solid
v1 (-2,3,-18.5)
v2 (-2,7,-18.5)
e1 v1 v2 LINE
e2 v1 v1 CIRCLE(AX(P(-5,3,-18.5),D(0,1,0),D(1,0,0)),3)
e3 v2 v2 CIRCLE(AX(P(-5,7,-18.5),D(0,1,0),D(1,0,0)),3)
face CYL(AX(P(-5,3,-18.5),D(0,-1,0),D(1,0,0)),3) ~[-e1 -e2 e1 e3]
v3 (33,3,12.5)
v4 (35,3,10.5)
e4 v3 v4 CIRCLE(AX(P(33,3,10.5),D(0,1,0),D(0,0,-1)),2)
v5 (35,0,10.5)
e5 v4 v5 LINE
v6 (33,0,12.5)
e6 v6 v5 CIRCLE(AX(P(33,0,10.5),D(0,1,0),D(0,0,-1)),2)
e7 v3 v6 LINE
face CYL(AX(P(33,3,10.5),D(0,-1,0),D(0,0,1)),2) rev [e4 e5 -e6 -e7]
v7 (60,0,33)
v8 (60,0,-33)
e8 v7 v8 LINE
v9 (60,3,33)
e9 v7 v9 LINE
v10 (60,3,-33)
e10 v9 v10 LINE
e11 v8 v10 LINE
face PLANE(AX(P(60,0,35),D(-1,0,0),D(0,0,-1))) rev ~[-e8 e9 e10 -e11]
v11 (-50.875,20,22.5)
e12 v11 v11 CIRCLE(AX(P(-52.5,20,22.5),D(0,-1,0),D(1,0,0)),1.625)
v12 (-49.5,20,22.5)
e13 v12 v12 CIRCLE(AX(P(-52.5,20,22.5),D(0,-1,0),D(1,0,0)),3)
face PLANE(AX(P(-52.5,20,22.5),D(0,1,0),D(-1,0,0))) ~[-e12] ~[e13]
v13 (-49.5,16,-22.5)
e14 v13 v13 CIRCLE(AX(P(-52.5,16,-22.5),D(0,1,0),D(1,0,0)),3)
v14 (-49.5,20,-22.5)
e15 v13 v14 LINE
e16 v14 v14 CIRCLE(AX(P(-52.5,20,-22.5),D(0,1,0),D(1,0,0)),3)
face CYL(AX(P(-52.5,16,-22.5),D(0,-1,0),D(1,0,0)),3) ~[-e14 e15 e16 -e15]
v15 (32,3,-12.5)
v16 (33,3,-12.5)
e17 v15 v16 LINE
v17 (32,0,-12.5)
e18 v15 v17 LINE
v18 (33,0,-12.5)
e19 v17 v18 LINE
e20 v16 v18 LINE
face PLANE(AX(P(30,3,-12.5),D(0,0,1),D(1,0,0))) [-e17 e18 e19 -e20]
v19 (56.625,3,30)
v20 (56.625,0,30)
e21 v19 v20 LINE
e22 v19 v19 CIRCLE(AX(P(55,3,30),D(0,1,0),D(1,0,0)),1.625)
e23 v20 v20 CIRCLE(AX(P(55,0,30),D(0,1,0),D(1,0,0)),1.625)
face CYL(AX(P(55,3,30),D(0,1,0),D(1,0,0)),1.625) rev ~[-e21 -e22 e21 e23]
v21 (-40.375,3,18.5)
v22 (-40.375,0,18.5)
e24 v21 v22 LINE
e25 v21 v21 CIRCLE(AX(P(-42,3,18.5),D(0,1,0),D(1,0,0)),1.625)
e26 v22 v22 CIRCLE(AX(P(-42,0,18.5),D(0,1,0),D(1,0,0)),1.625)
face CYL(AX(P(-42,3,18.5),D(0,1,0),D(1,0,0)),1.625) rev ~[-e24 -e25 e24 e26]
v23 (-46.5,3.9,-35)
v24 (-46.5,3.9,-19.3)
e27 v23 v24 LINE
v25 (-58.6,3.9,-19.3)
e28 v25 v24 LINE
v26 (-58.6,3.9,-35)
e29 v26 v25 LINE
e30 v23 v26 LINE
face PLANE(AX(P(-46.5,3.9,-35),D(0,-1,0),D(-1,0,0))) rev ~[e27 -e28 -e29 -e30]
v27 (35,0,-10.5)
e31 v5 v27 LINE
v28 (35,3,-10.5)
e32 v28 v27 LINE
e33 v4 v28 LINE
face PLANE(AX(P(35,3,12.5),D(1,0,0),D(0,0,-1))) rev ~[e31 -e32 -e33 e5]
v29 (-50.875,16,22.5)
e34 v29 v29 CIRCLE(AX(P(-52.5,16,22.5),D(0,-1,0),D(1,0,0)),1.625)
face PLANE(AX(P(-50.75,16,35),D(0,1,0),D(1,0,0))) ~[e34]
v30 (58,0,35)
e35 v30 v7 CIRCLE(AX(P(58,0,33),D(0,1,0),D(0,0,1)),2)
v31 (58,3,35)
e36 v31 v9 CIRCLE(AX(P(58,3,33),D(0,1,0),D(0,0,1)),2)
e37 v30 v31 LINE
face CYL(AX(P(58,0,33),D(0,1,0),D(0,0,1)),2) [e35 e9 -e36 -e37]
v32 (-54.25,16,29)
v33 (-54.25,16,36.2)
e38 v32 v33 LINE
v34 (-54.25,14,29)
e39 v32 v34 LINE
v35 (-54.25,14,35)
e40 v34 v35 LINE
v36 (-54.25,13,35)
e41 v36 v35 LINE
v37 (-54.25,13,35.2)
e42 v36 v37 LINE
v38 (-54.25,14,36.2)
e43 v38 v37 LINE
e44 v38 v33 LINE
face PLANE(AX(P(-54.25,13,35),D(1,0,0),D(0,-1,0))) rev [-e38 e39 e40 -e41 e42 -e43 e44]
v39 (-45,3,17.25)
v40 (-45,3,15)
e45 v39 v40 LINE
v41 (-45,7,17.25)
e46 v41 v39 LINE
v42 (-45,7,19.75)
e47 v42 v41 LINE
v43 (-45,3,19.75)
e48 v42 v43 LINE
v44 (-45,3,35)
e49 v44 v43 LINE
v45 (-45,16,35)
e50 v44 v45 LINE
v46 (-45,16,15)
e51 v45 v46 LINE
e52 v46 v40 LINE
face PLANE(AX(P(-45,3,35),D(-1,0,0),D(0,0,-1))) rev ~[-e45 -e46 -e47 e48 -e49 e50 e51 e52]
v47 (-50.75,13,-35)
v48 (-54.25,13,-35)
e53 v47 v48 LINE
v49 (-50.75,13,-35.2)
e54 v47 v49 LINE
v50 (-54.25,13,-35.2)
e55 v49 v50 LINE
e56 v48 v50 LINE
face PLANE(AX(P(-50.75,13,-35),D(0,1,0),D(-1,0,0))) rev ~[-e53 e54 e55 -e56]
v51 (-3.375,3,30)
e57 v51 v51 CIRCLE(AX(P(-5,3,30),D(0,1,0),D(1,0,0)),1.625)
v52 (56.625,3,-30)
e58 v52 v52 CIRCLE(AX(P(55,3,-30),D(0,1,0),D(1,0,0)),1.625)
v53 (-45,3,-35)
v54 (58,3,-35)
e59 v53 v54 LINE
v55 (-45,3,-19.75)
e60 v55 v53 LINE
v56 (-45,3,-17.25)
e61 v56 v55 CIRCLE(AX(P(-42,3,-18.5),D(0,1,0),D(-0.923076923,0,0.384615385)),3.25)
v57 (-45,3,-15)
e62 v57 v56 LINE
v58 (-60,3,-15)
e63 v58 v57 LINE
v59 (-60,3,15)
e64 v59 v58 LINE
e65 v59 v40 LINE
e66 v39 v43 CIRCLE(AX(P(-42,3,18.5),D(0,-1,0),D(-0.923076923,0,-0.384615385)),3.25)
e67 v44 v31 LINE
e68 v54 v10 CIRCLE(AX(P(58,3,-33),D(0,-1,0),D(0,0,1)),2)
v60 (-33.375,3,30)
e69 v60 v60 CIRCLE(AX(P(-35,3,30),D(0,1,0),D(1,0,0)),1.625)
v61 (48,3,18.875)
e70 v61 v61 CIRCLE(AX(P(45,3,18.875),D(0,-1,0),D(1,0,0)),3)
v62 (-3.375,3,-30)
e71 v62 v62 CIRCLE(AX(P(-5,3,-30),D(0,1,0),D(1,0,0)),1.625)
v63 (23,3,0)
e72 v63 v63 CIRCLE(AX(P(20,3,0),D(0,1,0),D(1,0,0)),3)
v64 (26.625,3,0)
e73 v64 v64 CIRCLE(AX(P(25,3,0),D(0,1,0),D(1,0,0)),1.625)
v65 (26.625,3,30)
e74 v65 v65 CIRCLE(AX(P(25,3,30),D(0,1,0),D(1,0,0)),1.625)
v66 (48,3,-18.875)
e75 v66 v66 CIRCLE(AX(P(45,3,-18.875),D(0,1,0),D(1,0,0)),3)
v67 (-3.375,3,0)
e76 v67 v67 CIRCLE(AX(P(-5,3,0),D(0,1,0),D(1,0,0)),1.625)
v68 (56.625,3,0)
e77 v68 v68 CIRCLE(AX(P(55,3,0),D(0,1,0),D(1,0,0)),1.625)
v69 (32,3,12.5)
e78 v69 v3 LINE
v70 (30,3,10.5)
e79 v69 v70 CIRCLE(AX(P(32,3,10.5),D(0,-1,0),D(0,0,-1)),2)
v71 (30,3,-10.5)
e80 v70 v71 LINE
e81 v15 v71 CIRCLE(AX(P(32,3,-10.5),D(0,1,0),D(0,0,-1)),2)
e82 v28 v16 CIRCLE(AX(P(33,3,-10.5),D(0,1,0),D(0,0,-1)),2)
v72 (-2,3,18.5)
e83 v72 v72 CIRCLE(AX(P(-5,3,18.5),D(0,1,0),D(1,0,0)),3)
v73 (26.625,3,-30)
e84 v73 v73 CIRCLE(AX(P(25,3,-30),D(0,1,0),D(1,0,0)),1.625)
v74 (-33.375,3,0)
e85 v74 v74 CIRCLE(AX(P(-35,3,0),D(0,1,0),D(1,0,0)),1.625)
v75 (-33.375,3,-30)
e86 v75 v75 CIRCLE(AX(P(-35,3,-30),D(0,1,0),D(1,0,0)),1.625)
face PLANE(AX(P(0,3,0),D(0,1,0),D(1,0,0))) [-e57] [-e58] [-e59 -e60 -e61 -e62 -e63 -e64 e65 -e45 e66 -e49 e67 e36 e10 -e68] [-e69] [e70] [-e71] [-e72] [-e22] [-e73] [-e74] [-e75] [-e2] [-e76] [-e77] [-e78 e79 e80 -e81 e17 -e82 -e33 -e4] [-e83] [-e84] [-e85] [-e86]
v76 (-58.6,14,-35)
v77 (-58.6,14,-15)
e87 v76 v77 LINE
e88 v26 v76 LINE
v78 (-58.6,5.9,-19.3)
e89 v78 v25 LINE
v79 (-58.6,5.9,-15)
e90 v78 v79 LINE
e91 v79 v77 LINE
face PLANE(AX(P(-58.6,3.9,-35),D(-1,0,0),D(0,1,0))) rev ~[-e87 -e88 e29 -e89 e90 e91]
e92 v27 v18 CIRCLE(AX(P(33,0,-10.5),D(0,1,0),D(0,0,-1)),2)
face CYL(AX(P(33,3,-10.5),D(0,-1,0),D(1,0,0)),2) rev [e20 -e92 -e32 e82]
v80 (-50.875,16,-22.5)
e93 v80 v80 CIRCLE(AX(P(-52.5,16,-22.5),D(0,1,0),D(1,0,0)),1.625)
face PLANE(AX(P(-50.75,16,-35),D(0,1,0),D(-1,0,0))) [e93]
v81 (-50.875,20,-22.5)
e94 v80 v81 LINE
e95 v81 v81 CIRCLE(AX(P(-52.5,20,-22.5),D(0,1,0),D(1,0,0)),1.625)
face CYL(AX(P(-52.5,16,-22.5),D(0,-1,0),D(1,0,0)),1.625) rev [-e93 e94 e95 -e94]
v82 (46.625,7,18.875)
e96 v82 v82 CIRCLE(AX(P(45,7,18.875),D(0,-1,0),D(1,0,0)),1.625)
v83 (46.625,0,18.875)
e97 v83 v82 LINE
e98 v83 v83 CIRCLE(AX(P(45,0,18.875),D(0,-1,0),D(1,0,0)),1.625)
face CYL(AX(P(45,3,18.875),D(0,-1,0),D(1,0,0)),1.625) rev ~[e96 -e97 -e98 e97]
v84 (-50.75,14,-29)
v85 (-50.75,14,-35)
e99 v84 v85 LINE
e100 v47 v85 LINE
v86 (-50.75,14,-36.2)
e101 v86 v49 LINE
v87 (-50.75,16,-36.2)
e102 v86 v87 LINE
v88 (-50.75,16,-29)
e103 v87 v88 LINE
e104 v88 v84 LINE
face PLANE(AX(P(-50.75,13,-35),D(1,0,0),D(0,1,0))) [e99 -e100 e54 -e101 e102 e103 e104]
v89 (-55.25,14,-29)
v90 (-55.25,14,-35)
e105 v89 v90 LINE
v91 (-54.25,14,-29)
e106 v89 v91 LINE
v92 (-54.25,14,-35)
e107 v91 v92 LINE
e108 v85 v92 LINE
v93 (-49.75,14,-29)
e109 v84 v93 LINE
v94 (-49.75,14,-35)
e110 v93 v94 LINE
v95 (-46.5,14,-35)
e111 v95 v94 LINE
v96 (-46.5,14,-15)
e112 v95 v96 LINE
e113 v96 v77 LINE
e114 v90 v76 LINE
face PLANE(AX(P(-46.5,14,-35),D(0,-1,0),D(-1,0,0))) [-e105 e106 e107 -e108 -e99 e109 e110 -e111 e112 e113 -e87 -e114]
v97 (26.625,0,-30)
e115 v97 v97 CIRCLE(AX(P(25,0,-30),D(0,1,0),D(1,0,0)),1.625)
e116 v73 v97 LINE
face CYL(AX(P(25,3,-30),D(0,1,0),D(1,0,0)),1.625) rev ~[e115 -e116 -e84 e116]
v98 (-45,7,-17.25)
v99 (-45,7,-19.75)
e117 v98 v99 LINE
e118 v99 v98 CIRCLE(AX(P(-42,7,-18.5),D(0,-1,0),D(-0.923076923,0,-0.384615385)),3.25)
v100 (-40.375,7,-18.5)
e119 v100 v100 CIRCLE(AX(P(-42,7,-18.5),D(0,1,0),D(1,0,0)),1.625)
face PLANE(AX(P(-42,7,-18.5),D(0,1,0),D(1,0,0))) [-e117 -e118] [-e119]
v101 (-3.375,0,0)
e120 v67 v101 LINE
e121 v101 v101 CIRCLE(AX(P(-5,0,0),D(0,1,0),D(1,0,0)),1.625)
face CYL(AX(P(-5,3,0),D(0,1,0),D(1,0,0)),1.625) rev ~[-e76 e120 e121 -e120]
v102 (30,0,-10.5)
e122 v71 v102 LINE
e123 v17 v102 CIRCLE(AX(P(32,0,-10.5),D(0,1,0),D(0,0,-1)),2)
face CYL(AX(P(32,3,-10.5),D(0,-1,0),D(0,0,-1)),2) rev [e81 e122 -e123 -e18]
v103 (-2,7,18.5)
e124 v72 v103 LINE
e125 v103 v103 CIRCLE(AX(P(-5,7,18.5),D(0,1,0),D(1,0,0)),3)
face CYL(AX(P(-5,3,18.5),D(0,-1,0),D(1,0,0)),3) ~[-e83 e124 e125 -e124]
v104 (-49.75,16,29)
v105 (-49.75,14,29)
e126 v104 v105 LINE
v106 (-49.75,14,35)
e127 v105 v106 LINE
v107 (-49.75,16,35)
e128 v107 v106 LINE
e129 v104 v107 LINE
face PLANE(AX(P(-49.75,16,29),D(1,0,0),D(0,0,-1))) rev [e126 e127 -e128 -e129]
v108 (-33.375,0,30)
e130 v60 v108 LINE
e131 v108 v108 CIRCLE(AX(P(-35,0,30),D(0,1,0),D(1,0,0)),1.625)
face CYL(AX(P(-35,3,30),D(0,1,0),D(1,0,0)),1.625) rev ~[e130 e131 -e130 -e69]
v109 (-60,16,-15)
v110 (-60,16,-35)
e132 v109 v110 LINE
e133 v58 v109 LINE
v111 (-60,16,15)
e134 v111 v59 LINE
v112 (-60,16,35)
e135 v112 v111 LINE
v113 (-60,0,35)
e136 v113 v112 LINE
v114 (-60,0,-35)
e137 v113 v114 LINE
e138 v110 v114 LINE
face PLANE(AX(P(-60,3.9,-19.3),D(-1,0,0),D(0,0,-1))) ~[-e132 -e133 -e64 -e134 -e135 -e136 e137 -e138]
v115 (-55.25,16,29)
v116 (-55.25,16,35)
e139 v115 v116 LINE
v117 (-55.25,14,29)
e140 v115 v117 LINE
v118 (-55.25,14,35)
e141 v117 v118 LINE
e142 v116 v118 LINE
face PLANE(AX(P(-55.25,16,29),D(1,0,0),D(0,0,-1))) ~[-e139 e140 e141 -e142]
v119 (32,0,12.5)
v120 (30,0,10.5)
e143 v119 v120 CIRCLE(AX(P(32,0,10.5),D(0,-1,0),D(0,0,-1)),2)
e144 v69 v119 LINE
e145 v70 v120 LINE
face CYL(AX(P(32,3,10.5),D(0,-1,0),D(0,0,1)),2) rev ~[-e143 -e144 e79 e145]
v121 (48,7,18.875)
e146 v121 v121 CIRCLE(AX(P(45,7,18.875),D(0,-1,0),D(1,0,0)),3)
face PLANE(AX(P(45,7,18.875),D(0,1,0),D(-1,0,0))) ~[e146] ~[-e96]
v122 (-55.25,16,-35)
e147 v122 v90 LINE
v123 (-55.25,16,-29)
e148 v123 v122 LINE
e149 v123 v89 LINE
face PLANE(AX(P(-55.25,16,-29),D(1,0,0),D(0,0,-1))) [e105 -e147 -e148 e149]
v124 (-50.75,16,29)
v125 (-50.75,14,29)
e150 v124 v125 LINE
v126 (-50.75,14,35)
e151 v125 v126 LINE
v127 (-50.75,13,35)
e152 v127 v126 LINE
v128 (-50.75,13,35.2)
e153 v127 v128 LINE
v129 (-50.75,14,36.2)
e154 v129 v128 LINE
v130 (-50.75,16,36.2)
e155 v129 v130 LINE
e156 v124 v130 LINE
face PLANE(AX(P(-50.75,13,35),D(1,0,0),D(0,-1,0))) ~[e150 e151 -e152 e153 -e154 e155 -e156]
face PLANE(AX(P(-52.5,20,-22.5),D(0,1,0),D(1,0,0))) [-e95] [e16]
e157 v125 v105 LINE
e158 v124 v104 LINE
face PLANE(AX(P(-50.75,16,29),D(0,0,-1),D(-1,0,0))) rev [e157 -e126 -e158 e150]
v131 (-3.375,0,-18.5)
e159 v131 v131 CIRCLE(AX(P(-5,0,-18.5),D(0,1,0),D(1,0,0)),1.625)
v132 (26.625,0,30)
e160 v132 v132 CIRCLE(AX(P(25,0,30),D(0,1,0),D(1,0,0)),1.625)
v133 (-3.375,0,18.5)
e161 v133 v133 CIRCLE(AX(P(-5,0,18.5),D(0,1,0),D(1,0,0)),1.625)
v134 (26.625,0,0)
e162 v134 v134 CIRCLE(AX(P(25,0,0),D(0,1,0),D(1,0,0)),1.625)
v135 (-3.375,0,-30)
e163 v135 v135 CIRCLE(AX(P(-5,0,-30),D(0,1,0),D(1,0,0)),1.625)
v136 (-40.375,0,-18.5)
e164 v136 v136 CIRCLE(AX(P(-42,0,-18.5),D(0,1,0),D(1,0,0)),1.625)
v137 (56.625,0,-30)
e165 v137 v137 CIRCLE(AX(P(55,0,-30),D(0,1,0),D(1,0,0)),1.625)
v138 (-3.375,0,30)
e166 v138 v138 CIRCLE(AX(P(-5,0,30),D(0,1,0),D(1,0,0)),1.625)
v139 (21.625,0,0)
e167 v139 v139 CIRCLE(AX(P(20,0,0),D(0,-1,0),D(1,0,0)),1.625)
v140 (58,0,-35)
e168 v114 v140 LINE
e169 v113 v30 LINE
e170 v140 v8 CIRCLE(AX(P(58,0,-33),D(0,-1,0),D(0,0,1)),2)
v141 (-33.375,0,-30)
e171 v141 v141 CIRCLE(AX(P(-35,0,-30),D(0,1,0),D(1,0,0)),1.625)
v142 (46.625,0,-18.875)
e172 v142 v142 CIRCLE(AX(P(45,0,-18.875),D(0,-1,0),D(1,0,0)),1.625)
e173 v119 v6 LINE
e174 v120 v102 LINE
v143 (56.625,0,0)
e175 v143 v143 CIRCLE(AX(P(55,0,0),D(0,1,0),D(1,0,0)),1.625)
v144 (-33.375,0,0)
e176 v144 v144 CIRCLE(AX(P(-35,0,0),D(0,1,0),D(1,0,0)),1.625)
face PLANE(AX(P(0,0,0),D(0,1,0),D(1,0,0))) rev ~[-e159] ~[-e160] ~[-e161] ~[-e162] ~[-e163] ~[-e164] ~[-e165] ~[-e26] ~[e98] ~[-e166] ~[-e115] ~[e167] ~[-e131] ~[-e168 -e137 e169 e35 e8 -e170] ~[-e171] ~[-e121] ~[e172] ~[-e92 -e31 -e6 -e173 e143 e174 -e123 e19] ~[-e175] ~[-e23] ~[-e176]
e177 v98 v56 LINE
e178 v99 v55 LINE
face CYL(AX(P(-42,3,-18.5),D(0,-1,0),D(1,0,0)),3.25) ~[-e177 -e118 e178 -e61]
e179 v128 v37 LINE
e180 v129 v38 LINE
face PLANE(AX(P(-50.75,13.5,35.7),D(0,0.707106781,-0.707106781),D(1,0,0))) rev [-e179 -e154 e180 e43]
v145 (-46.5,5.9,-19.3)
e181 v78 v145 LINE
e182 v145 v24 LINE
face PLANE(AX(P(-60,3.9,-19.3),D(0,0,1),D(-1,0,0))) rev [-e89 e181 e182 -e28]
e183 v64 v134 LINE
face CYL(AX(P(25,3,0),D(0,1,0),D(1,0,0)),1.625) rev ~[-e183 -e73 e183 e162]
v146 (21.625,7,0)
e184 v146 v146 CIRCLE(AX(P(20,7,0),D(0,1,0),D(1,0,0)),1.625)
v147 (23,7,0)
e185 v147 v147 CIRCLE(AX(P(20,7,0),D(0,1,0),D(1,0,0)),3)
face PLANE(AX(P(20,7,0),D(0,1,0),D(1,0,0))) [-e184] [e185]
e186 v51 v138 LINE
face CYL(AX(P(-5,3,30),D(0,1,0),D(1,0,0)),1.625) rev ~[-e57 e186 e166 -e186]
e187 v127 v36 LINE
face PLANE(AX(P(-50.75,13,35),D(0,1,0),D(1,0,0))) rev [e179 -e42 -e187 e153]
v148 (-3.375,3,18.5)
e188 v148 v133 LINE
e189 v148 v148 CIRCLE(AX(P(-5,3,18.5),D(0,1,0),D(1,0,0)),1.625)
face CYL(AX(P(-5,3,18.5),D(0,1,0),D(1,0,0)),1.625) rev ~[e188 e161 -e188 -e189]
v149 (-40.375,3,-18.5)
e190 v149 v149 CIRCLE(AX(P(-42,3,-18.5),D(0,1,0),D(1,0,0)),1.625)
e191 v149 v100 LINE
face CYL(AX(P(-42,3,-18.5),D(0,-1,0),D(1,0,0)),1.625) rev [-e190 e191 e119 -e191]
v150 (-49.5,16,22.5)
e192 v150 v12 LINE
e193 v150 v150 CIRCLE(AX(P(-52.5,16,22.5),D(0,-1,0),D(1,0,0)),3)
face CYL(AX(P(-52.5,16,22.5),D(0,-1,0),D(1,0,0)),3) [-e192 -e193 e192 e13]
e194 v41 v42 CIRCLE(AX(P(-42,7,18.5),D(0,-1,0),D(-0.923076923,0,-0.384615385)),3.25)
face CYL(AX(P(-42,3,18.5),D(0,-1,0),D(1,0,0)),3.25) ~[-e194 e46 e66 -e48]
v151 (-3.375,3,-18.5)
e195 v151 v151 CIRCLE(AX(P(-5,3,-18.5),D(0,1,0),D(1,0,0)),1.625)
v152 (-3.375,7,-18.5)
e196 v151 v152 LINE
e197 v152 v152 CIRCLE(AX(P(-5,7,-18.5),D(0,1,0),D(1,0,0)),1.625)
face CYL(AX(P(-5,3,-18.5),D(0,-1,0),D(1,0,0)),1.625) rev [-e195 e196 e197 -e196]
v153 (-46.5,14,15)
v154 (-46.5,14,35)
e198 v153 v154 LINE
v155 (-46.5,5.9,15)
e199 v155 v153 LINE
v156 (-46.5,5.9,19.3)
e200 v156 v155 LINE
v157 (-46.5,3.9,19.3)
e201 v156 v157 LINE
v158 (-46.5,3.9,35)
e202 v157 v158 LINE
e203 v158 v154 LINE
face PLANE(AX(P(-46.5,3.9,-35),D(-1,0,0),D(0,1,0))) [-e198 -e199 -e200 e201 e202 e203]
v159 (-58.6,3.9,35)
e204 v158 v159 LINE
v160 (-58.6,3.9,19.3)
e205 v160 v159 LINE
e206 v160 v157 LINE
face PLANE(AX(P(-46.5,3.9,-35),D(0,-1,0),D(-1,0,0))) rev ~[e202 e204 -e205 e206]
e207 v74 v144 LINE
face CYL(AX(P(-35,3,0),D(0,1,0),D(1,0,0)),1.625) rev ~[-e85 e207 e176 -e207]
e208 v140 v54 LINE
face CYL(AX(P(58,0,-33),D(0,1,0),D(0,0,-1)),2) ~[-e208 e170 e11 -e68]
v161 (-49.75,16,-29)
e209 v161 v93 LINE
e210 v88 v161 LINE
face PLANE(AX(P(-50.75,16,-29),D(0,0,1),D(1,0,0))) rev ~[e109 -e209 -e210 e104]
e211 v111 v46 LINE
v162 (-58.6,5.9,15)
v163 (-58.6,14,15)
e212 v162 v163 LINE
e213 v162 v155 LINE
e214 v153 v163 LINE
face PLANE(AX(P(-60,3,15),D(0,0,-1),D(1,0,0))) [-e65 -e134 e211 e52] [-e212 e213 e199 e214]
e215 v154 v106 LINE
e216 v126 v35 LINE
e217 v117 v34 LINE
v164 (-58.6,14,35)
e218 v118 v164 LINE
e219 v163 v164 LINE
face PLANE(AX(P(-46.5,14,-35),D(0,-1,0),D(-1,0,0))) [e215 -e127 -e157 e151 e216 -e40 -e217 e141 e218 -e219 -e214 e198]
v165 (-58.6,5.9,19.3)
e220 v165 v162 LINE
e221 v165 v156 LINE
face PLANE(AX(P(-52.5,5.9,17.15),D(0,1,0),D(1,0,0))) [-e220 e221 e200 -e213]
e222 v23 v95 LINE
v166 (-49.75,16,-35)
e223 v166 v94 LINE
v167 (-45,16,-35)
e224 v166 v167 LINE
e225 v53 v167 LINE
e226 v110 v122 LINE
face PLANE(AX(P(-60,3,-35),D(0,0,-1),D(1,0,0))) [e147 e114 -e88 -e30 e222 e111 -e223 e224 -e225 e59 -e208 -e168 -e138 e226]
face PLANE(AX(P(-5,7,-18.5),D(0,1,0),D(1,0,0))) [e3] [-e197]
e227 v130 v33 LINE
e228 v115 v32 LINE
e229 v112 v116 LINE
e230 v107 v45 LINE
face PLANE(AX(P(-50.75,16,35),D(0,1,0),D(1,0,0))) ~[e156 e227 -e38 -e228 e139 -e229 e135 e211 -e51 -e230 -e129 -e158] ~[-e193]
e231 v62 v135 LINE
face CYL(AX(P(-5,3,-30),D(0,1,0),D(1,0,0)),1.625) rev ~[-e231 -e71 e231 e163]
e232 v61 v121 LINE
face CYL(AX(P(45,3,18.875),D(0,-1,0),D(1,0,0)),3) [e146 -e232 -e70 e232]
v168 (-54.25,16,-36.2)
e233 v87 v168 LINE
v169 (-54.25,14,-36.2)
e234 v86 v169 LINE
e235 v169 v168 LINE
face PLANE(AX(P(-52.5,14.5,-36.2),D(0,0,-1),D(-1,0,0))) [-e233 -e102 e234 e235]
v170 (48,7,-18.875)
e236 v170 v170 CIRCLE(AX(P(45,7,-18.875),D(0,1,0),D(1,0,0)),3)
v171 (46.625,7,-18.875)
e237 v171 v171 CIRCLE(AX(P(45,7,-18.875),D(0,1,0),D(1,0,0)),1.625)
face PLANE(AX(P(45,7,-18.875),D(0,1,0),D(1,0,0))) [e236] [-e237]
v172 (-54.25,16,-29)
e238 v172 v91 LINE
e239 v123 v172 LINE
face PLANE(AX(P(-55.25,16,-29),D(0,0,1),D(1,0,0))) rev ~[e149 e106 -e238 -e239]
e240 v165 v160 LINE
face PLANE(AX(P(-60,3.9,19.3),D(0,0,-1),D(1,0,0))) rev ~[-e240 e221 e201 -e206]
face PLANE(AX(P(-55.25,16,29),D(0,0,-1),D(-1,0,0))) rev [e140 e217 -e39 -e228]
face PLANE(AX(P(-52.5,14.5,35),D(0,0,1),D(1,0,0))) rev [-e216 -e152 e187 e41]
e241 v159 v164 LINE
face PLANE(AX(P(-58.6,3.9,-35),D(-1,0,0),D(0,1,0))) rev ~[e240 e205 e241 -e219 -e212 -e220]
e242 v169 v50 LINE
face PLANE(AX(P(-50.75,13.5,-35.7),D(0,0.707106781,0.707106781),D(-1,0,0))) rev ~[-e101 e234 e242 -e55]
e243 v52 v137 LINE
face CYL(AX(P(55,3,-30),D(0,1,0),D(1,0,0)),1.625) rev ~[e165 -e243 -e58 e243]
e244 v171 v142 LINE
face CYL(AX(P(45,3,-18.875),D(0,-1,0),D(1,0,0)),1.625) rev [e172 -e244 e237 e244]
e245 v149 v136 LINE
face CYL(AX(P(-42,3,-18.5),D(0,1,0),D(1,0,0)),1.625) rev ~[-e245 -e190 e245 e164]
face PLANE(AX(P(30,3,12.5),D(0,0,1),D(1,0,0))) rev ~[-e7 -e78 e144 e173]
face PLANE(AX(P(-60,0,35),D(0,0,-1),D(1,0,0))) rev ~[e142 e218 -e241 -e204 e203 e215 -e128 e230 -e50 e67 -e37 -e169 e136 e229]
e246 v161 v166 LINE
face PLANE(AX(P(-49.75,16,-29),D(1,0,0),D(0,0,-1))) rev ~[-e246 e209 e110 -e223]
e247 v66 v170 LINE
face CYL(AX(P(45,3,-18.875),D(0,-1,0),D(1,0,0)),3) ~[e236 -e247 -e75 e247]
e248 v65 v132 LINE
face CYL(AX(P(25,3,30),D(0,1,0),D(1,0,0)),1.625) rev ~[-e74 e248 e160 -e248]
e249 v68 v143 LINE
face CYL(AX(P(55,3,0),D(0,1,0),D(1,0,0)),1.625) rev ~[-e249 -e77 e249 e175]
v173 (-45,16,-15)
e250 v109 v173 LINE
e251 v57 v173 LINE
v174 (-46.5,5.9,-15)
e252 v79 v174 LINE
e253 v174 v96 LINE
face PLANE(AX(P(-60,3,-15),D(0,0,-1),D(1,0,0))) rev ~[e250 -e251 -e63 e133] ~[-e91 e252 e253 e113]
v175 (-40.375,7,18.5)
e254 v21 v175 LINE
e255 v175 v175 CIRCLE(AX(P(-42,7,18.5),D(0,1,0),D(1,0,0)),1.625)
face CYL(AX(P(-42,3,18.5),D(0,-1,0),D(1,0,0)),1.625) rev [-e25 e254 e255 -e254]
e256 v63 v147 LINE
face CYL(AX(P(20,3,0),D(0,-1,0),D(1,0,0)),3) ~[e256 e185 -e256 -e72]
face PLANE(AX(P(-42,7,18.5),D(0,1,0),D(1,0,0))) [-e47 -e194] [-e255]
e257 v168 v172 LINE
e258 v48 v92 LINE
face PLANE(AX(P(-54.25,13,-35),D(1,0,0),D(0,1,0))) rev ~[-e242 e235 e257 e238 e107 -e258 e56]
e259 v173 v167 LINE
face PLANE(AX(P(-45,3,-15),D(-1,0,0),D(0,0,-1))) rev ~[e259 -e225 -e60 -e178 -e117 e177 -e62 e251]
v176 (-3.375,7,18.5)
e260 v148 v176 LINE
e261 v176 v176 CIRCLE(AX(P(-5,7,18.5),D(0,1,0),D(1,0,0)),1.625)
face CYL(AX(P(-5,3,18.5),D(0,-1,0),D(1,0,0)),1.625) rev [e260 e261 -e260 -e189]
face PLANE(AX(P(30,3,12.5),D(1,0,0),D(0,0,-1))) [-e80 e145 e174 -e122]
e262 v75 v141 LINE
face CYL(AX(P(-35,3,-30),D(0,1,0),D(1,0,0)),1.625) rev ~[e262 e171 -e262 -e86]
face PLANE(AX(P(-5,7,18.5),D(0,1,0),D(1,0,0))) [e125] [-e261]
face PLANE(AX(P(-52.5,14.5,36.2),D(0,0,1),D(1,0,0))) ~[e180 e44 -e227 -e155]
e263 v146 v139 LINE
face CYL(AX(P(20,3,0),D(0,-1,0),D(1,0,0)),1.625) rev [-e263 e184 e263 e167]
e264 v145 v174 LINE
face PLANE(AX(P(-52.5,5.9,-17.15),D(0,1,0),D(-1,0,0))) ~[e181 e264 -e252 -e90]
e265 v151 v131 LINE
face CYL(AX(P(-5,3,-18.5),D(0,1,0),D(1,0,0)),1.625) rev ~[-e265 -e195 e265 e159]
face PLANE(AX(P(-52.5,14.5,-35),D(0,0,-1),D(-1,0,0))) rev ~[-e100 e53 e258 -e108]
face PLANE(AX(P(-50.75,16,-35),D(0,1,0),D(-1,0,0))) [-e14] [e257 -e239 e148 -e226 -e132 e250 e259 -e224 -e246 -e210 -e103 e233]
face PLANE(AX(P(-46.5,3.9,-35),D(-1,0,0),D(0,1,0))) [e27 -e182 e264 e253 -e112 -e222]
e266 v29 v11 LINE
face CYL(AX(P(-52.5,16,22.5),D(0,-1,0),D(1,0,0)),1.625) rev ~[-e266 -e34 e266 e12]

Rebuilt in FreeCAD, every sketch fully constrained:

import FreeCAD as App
import Part
import Sketcher

V = App.Vector
Q = App.Units.Quantity


def edges_at(feature, points):
    """Names of the edges that pass closest to the given points."""
    edges = feature.Shape.Edges
    near = lambda p: min(range(len(edges)), key=lambda i: edges[i].distToShape(Part.Vertex(*p))[0])
    return sorted({f"Edge{near(p) + 1}" for p in points})

doc = App.newDocument("Part")
body = doc.addObject("PartDesign::Body", "Body")

# Sketch on XZ plane
sketch1 = body.newObject("Sketcher::SketchObject", "Sketch")
sketch1.AttachmentSupport = (doc.getObject("XZ_Plane"), [""])
sketch1.MapMode = "FlatFace"
sketch1.addGeometry([
    Part.LineSegment(V(-60, -35, 0), V(-60, 35, 0)),
    Part.LineSegment(V(-60, 35, 0), V(60, 35, 0)),
    Part.LineSegment(V(60, 35, 0), V(60, -35, 0)),
    Part.LineSegment(V(60, -35, 0), V(-60, -35, 0)),
], False)
sketch1.addConstraint([
    Sketcher.Constraint("Coincident", 0, 2, 1, 1),
    Sketcher.Constraint("Coincident", 1, 2, 2, 1),
    Sketcher.Constraint("Coincident", 2, 2, 3, 1),
    Sketcher.Constraint("Coincident", 3, 2, 0, 1),
    Sketcher.Constraint("Vertical", 0),
    Sketcher.Constraint("Horizontal", 1),
    Sketcher.Constraint("Vertical", 2),
    Sketcher.Constraint("Horizontal", 3),
    Sketcher.Constraint("Symmetric", 0, 2, 2, 2, -1, 1),
    Sketcher.Constraint("DistanceX", 1, 1, 1, 2, Q("120 mm")),
    Sketcher.Constraint("DistanceY", 0, 1, 0, 2, Q("70 mm")),
])
pad1 = body.newObject("PartDesign::Pad", "Pad")
pad1.Profile = sketch1
pad1.Length = 3
pad1.Reversed = True

# Sketch on XZ plane
sketch2 = body.newObject("Sketcher::SketchObject", "Sketch001")
sketch2.AttachmentSupport = (doc.getObject("XZ_Plane"), [""])
sketch2.MapMode = "FlatFace"
sketch2.AttachmentOffset = App.Placement(V(0, 0, -3), App.Rotation())
sketch2.addGeometry([
    Part.LineSegment(V(-60, -35, 0), V(-60, -15, 0)),  # 0
    Part.LineSegment(V(-60, -15, 0), V(-45, -15, 0)),  # 1
    Part.LineSegment(V(-45, -15, 0), V(-45, -35, 0)),  # 2
    Part.LineSegment(V(-45, -35, 0), V(-60, -35, 0)),  # 3
    Part.LineSegment(V(-60, 15, 0), V(-60, 35, 0)),  # 4
    Part.LineSegment(V(-60, 35, 0), V(-45, 35, 0)),  # 5
    Part.LineSegment(V(-45, 35, 0), V(-45, 15, 0)),  # 6
    Part.LineSegment(V(-45, 15, 0), V(-60, 15, 0)),  # 7
], False)
sketch2.addConstraint([
    Sketcher.Constraint("Coincident", 0, 2, 1, 1),
    Sketcher.Constraint("Coincident", 1, 2, 2, 1),
    Sketcher.Constraint("Coincident", 2, 2, 3, 1),
    Sketcher.Constraint("Coincident", 3, 2, 0, 1),
    Sketcher.Constraint("Coincident", 4, 2, 5, 1),
    Sketcher.Constraint("Coincident", 5, 2, 6, 1),
    Sketcher.Constraint("Coincident", 6, 2, 7, 1),
    Sketcher.Constraint("Coincident", 7, 2, 4, 1),
    Sketcher.Constraint("Vertical", 0),
    Sketcher.Constraint("Horizontal", 1),
    Sketcher.Constraint("Vertical", 2),
    Sketcher.Constraint("Horizontal", 3),
    Sketcher.Constraint("Vertical", 4),
    Sketcher.Constraint("Horizontal", 5),
    Sketcher.Constraint("Vertical", 6),
    Sketcher.Constraint("Horizontal", 7),
    Sketcher.Constraint("Symmetric", 3, 2, 4, 2, -1),
    Sketcher.Constraint("Symmetric", 1, 2, 6, 2, -1),
    Sketcher.Constraint("DistanceX", 1, 1, 1, 2, Q("15 mm")),
    Sketcher.Constraint("DistanceY", 0, 1, 0, 2, Q("20 mm")),
    Sketcher.Constraint("DistanceX", 0, 2, -1, 1, Q("60 mm")),
    Sketcher.Constraint("DistanceY", 0, 2, -1, 1, Q("15 mm")),
])
pad2 = body.newObject("PartDesign::Pad", "Pad001")
pad2.Profile = sketch2
pad2.Length = 13
pad2.Reversed = True

# Sketch on XY plane
sketch3 = body.newObject("Sketcher::SketchObject", "Sketch002")
sketch3.AttachmentSupport = (doc.getObject("XY_Plane"), [""])
sketch3.MapMode = "FlatFace"
sketch3.AttachmentOffset = App.Placement(V(0, 0, -35), App.Rotation())
sketch3.addGeometry([
    Part.LineSegment(V(-46.5, 14, 0), V(-46.5, 3.9, 0)),
    Part.LineSegment(V(-46.5, 3.9, 0), V(-58.6, 3.9, 0)),
    Part.LineSegment(V(-58.6, 3.9, 0), V(-58.6, 14, 0)),
    Part.LineSegment(V(-58.6, 14, 0), V(-46.5, 14, 0)),
], False)
sketch3.addConstraint([
    Sketcher.Constraint("Coincident", 0, 2, 1, 1),
    Sketcher.Constraint("Coincident", 1, 2, 2, 1),
    Sketcher.Constraint("Coincident", 2, 2, 3, 1),
    Sketcher.Constraint("Coincident", 3, 2, 0, 1),
    Sketcher.Constraint("Vertical", 0),
    Sketcher.Constraint("Horizontal", 1),
    Sketcher.Constraint("Vertical", 2),
    Sketcher.Constraint("Horizontal", 3),
    Sketcher.Constraint("DistanceX", 1, 2, 1, 1, Q("12.1 mm")),
    Sketcher.Constraint("DistanceY", 0, 2, 0, 1, Q("10.1 mm")),
    Sketcher.Constraint("DistanceY", -1, 1, 2, 2, Q("14 mm")),
    Sketcher.Constraint("DistanceX", 0, 2, -1, 1, Q("46.5 mm")),
])
pocket1 = body.newObject("PartDesign::Pocket", "Pocket")
pocket1.Profile = sketch3
pocket1.Type = "ThroughAll"
pocket1.Reversed = True

# Sketch on XZ plane
sketch4 = body.newObject("Sketcher::SketchObject", "Sketch003")
sketch4.AttachmentSupport = (doc.getObject("XZ_Plane"), [""])
sketch4.MapMode = "FlatFace"
sketch4.AttachmentOffset = App.Placement(V(0, 0, -3.9), App.Rotation())
sketch4.addGeometry([
    Part.LineSegment(V(-60, 15, 0), V(-60, 19.3, 0)),
    Part.LineSegment(V(-60, 19.3, 0), V(-45, 19.3, 0)),
    Part.LineSegment(V(-45, 19.3, 0), V(-45, 15, 0)),
    Part.LineSegment(V(-45, 15, 0), V(-60, 15, 0)),
], False)
sketch4.addConstraint([
    Sketcher.Constraint("Coincident", 0, 2, 1, 1),
    Sketcher.Constraint("Coincident", 1, 2, 2, 1),
    Sketcher.Constraint("Coincident", 2, 2, 3, 1),
    Sketcher.Constraint("Coincident", 3, 2, 0, 1),
    Sketcher.Constraint("Vertical", 0),
    Sketcher.Constraint("Horizontal", 1),
    Sketcher.Constraint("Vertical", 2),
    Sketcher.Constraint("Horizontal", 3),
    Sketcher.Constraint("DistanceX", 1, 1, 1, 2, Q("15 mm")),
    Sketcher.Constraint("DistanceY", 0, 1, 0, 2, Q("4.3 mm")),
    Sketcher.Constraint("DistanceX", 0, 2, -1, 1, Q("60 mm")),
    Sketcher.Constraint("DistanceY", -1, 1, 2, 2, Q("15 mm")),
])
pad3 = body.newObject("PartDesign::Pad", "Pad002")
pad3.Profile = sketch4
pad3.Length = 2
pad3.Reversed = True
doc.recompute()

mirrored = body.newObject("PartDesign::Mirrored", "Mirrored")
mirrored.Originals = [pad3]
mirrored.MirrorPlane = (doc.getObject("XY_Plane"), [""])
body.Tip = mirrored

# Sketch on XZ plane
sketch5 = body.newObject("Sketcher::SketchObject", "Sketch004")
sketch5.AttachmentSupport = (doc.getObject("XZ_Plane"), [""])
sketch5.MapMode = "FlatFace"
sketch5.AttachmentOffset = App.Placement(V(0, 0, -16), App.Rotation())
sketch5.addGeometry([
    Part.LineSegment(V(-55.25, -35, 0), V(-55.25, -29, 0)),  # 0
    Part.LineSegment(V(-55.25, -29, 0), V(-54.25, -29, 0)),  # 1
    Part.LineSegment(V(-54.25, -29, 0), V(-54.25, -35, 0)),  # 2
    Part.LineSegment(V(-54.25, -35, 0), V(-55.25, -35, 0)),  # 3
    Part.LineSegment(V(-50.75, -35, 0), V(-50.75, -29, 0)),  # 4
    Part.LineSegment(V(-50.75, -29, 0), V(-49.75, -29, 0)),  # 5
    Part.LineSegment(V(-49.75, -29, 0), V(-49.75, -35, 0)),  # 6
    Part.LineSegment(V(-49.75, -35, 0), V(-50.75, -35, 0)),  # 7
], False)
sketch5.addConstraint([
    Sketcher.Constraint("Coincident", 0, 2, 1, 1),
    Sketcher.Constraint("Coincident", 1, 2, 2, 1),
    Sketcher.Constraint("Coincident", 2, 2, 3, 1),
    Sketcher.Constraint("Coincident", 3, 2, 0, 1),
    Sketcher.Constraint("Coincident", 4, 2, 5, 1),
    Sketcher.Constraint("Coincident", 5, 2, 6, 1),
    Sketcher.Constraint("Coincident", 6, 2, 7, 1),
    Sketcher.Constraint("Coincident", 7, 2, 4, 1),
    Sketcher.Constraint("Vertical", 0),
    Sketcher.Constraint("Horizontal", 1),
    Sketcher.Constraint("Vertical", 2),
    Sketcher.Constraint("Horizontal", 3),
    Sketcher.Constraint("Vertical", 4),
    Sketcher.Constraint("Horizontal", 5),
    Sketcher.Constraint("Vertical", 6),
    Sketcher.Constraint("Horizontal", 7),
    Sketcher.Constraint("Horizontal", 1, 2, 4, 2),
    Sketcher.Constraint("Horizontal", 3, 2, 6, 2),
    Sketcher.Constraint("Equal", 3, 5),
    Sketcher.Constraint("DistanceX", 1, 1, 1, 2, Q("1 mm")),
    Sketcher.Constraint("DistanceY", 0, 1, 0, 2, Q("6 mm")),
    Sketcher.Constraint("DistanceY", 0, 2, -1, 1, Q("29 mm")),
    Sketcher.Constraint("DistanceX", 1, 2, 4, 2, Q("3.5 mm")),
    Sketcher.Constraint("DistanceX", 0, 2, -1, 1, Q("55.25 mm")),
])
pocket2 = body.newObject("PartDesign::Pocket", "Pocket001")
pocket2.Profile = sketch5
pocket2.Length = 2
pocket2.Reversed = True
doc.recompute()

mirrored2 = body.newObject("PartDesign::Mirrored", "Mirrored001")
mirrored2.Originals = [pocket2]
mirrored2.MirrorPlane = (doc.getObject("XY_Plane"), [""])
body.Tip = mirrored2

# Sketch on XY plane
sketch6 = body.newObject("Sketcher::SketchObject", "Sketch005")
sketch6.AttachmentSupport = (doc.getObject("XY_Plane"), [""])
sketch6.MapMode = "FlatFace"
sketch6.AttachmentOffset = App.Placement(V(0, 0, -35), App.Rotation())
sketch6.addGeometry([
    Part.LineSegment(V(-50.75, 16, 0), V(-50.75, 13, 0)),
    Part.LineSegment(V(-50.75, 13, 0), V(-54.25, 13, 0)),
    Part.LineSegment(V(-54.25, 13, 0), V(-54.25, 16, 0)),
    Part.LineSegment(V(-54.25, 16, 0), V(-50.75, 16, 0)),
], False)
sketch6.addConstraint([
    Sketcher.Constraint("Coincident", 0, 2, 1, 1),
    Sketcher.Constraint("Coincident", 1, 2, 2, 1),
    Sketcher.Constraint("Coincident", 2, 2, 3, 1),
    Sketcher.Constraint("Coincident", 3, 2, 0, 1),
    Sketcher.Constraint("Vertical", 0),
    Sketcher.Constraint("Horizontal", 1),
    Sketcher.Constraint("Vertical", 2),
    Sketcher.Constraint("Horizontal", 3),
    Sketcher.Constraint("DistanceY", 0, 2, 0, 1, Q("3 mm")),
    Sketcher.Constraint("DistanceX", 1, 2, 1, 1, Q("3.5 mm")),
    Sketcher.Constraint("DistanceY", -1, 1, 0, 2, Q("13 mm")),
    Sketcher.Constraint("DistanceX", 0, 2, -1, 1, Q("50.75 mm")),
])
pad4 = body.newObject("PartDesign::Pad", "Pad003")
pad4.Profile = sketch6
pad4.Length = 1.2
pad4.Reversed = True
doc.recompute()

chamfer = body.newObject("PartDesign::Chamfer", "Chamfer")
chamfer.Base = (pad4, edges_at(pad4, [(-52.5, 13, -36.2)]))
chamfer.Size = 1
doc.recompute()

mirrored3 = body.newObject("PartDesign::Mirrored", "Mirrored002")
mirrored3.Originals = [pad4]
mirrored3.MirrorPlane = (doc.getObject("XY_Plane"), [""])
body.Tip = mirrored3
doc.recompute()

chamfer2 = body.newObject("PartDesign::Chamfer", "Chamfer001")
chamfer2.Base = (mirrored3, edges_at(mirrored3, [(-52.5, 13, 36.2)]))
chamfer2.Size = 1

# Sketch on XZ plane
sketch7 = body.newObject("Sketcher::SketchObject", "Sketch006")
sketch7.AttachmentSupport = (doc.getObject("XZ_Plane"), [""])
sketch7.MapMode = "FlatFace"
sketch7.addGeometry(Part.Circle(V(45, 18.875, 0), V(0, 0, 1), 1.625), False)
sketch7.addConstraint([
    Sketcher.Constraint("Diameter", 0, Q("3.25 mm")),
    Sketcher.Constraint("DistanceX", -1, 1, 0, 3, Q("45 mm")),
    Sketcher.Constraint("DistanceY", -1, 1, 0, 3, Q("18.875 mm")),
])
pocket3 = body.newObject("PartDesign::Pocket", "Pocket002")
pocket3.Profile = sketch7
pocket3.Type = "UpToFirst"

# Sketch on XZ plane
sketch8 = body.newObject("Sketcher::SketchObject", "Sketch007")
sketch8.AttachmentSupport = (doc.getObject("XZ_Plane"), [""])
sketch8.MapMode = "FlatFace"
sketch8.addGeometry(Part.Circle(V(45, -18.875, 0), V(0, 0, 1), 1.625), False)
sketch8.addConstraint([
    Sketcher.Constraint("Diameter", 0, Q("3.25 mm")),
    Sketcher.Constraint("DistanceX", -1, 1, 0, 3, Q("45 mm")),
    Sketcher.Constraint("DistanceY", 0, 3, -1, 1, Q("18.875 mm")),
])
pocket4 = body.newObject("PartDesign::Pocket", "Pocket003")
pocket4.Profile = sketch8
pocket4.Type = "UpToFirst"

# Sketch on XZ plane
sketch9 = body.newObject("Sketcher::SketchObject", "Sketch008")
sketch9.AttachmentSupport = (doc.getObject("XZ_Plane"), [""])
sketch9.MapMode = "FlatFace"
sketch9.AttachmentOffset = App.Placement(V(0, 0, -3), App.Rotation())
sketch9.addGeometry([
    Part.Circle(V(45, -18.875, 0), V(0, 0, 1), 3),
    Part.Circle(V(45, -18.875, 0), V(0, 0, 1), 1.625),
], False)
sketch9.addConstraint([
    Sketcher.Constraint("Coincident", 1, 3, 0, 3),
    Sketcher.Constraint("Diameter", 0, Q("6 mm")),
    Sketcher.Constraint("Diameter", 1, Q("3.25 mm")),
    Sketcher.Constraint("DistanceX", -1, 1, 0, 3, Q("45 mm")),
    Sketcher.Constraint("DistanceY", 0, 3, -1, 1, Q("18.875 mm")),
])
pad5 = body.newObject("PartDesign::Pad", "Pad004")
pad5.Profile = sketch9
pad5.Length = 4
pad5.Reversed = True
doc.recompute()

mirrored4 = body.newObject("PartDesign::Mirrored", "Mirrored003")
mirrored4.Originals = [pad5]
mirrored4.MirrorPlane = (doc.getObject("XY_Plane"), [""])
body.Tip = mirrored4

# Sketch on XZ plane
sketch10 = body.newObject("Sketcher::SketchObject", "Sketch009")
sketch10.AttachmentSupport = (doc.getObject("XZ_Plane"), [""])
sketch10.MapMode = "FlatFace"
sketch10.addGeometry(Part.Circle(V(20, 0, 0), V(0, 0, 1), 1.625), False)
sketch10.addConstraint([
    Sketcher.Constraint("PointOnObject", 0, 3, -1),
    Sketcher.Constraint("Diameter", 0, Q("3.25 mm")),
    Sketcher.Constraint("DistanceX", -1, 1, 0, 3, Q("20 mm")),
])
pocket5 = body.newObject("PartDesign::Pocket", "Pocket004")
pocket5.Profile = sketch10
pocket5.Type = "UpToFirst"

# Sketch on XZ plane
sketch11 = body.newObject("Sketcher::SketchObject", "Sketch010")
sketch11.AttachmentSupport = (doc.getObject("XZ_Plane"), [""])
sketch11.MapMode = "FlatFace"
sketch11.AttachmentOffset = App.Placement(V(0, 0, -3), App.Rotation())
sketch11.addGeometry([
    Part.Circle(V(20, 0, 0), V(0, 0, 1), 3),
    Part.Circle(V(20, 0, 0), V(0, 0, 1), 1.625),
], False)
sketch11.addConstraint([
    Sketcher.Constraint("Coincident", 1, 3, 0, 3),
    Sketcher.Constraint("PointOnObject", 0, 3, -1),
    Sketcher.Constraint("Diameter", 0, Q("6 mm")),
    Sketcher.Constraint("Diameter", 1, Q("3.25 mm")),
    Sketcher.Constraint("DistanceX", -1, 1, 0, 3, Q("20 mm")),
])
pad6 = body.newObject("PartDesign::Pad", "Pad005")
pad6.Profile = sketch11
pad6.Length = 4
pad6.Reversed = True

# Sketch on XZ plane
sketch12 = body.newObject("Sketcher::SketchObject", "Sketch011")
sketch12.AttachmentSupport = (doc.getObject("XZ_Plane"), [""])
sketch12.MapMode = "FlatFace"
sketch12.AttachmentOffset = App.Placement(V(0, 0, -3), App.Rotation())
sketch12.addGeometry([
    Part.Circle(V(-42, -18.5, 0), V(0, 0, 1), 1.625),
    Part.Circle(V(-42, 18.5, 0), V(0, 0, 1), 1.625),
    Part.Circle(V(-5, -18.5, 0), V(0, 0, 1), 1.625),
    Part.Circle(V(-5, 18.5, 0), V(0, 0, 1), 1.625),
], False)
sketch12.addConstraint([
    Sketcher.Constraint("Equal", 0, 1),
    Sketcher.Constraint("Equal", 1, 2),
    Sketcher.Constraint("Equal", 2, 3),
    Sketcher.Constraint("Symmetric", 0, 3, 1, 3, -1),
    Sketcher.Constraint("Symmetric", 2, 3, 3, 3, -1),
    Sketcher.Constraint("Horizontal", 0, 3, 2, 3),
    Sketcher.Constraint("Diameter", 0, Q("3.25 mm")),
    Sketcher.Constraint("DistanceX", 0, 3, -1, 1, Q("42 mm")),
    Sketcher.Constraint("DistanceX", 2, 3, -1, 1, Q("5 mm")),
    Sketcher.Constraint("DistanceY", 0, 3, 1, 3, Q("37 mm")),
])
pocket6 = body.newObject("PartDesign::Pocket", "Pocket005")
pocket6.Profile = sketch12
pocket6.Type = "ThroughAll"
pocket6.Reversed = True

# Sketch on XZ plane
sketch13 = body.newObject("Sketcher::SketchObject", "Sketch012")
sketch13.AttachmentSupport = (doc.getObject("XZ_Plane"), [""])
sketch13.MapMode = "FlatFace"
sketch13.AttachmentOffset = App.Placement(V(0, 0, -3), App.Rotation())
sketch13.addGeometry([
    Part.Circle(V(-42, -18.5, 0), V(0, 0, 1), 3.25),  # 0
    Part.Circle(V(-42, -18.5, 0), V(0, 0, 1), 1.625),  # 1
    Part.Circle(V(-5, -18.5, 0), V(0, 0, 1), 3),  # 2
    Part.Circle(V(-5, -18.5, 0), V(0, 0, 1), 1.625),  # 3
    Part.Circle(V(-5, 18.5, 0), V(0, 0, 1), 3),  # 4
    Part.Circle(V(-5, 18.5, 0), V(0, 0, 1), 1.625),  # 5
    Part.Circle(V(-42, 18.5, 0), V(0, 0, 1), 3.25),  # 6
    Part.Circle(V(-42, 18.5, 0), V(0, 0, 1), 1.625),  # 7
], False)
sketch13.addConstraint([
    Sketcher.Constraint("Coincident", 1, 3, 0, 3),
    Sketcher.Constraint("Coincident", 3, 3, 2, 3),
    Sketcher.Constraint("Coincident", 5, 3, 4, 3),
    Sketcher.Constraint("Coincident", 7, 3, 6, 3),
    Sketcher.Constraint("Equal", 1, 3),
    Sketcher.Constraint("Equal", 2, 4),
    Sketcher.Constraint("Equal", 3, 5),
    Sketcher.Constraint("Equal", 0, 6),
    Sketcher.Constraint("Equal", 5, 7),
    Sketcher.Constraint("Symmetric", 2, 3, 4, 3, -1),
    Sketcher.Constraint("Symmetric", 0, 3, 6, 3, -1),
    Sketcher.Constraint("Horizontal", 1, 3, 2, 3),
    Sketcher.Constraint("Diameter", 2, Q("6 mm")),
    Sketcher.Constraint("Diameter", 0, Q("6.5 mm")),
    Sketcher.Constraint("Diameter", 1, Q("3.25 mm")),
    Sketcher.Constraint("DistanceX", 0, 3, -1, 1, Q("42 mm")),
    Sketcher.Constraint("DistanceX", 2, 3, -1, 1, Q("5 mm")),
    Sketcher.Constraint("DistanceY", 2, 3, 4, 3, Q("37 mm")),
])
pad7 = body.newObject("PartDesign::Pad", "Pad006")
pad7.Profile = sketch13
pad7.Length = 4
pad7.Reversed = True

# Sketch on XZ plane
sketch14 = body.newObject("Sketcher::SketchObject", "Sketch013")
sketch14.AttachmentSupport = (doc.getObject("XZ_Plane"), [""])
sketch14.MapMode = "FlatFace"
sketch14.AttachmentOffset = App.Placement(V(0, 0, -3), App.Rotation())
sketch14.addGeometry([
    Part.LineSegment(V(30, -12.5, 0), V(30, 12.5, 0)),
    Part.LineSegment(V(30, 12.5, 0), V(35, 12.5, 0)),
    Part.LineSegment(V(35, 12.5, 0), V(35, -12.5, 0)),
    Part.LineSegment(V(35, -12.5, 0), V(30, -12.5, 0)),
], False)
sketch14.addConstraint([
    Sketcher.Constraint("Coincident", 0, 2, 1, 1),
    Sketcher.Constraint("Coincident", 1, 2, 2, 1),
    Sketcher.Constraint("Coincident", 2, 2, 3, 1),
    Sketcher.Constraint("Coincident", 3, 2, 0, 1),
    Sketcher.Constraint("Vertical", 0),
    Sketcher.Constraint("Horizontal", 1),
    Sketcher.Constraint("Vertical", 2),
    Sketcher.Constraint("Horizontal", 3),
    Sketcher.Constraint("DistanceX", 1, 1, 1, 2, Q("5 mm")),
    Sketcher.Constraint("DistanceY", 0, 1, 0, 2, Q("25 mm")),
    Sketcher.Constraint("DistanceX", -1, 1, 0, 2, Q("30 mm")),
    Sketcher.Constraint("DistanceY", -1, 1, 0, 2, Q("12.5 mm")),
])
pocket7 = body.newObject("PartDesign::Pocket", "Pocket006")
pocket7.Profile = sketch14
pocket7.Type = "ThroughAll"
pocket7.Reversed = True

# Sketch on XZ plane
sketch15 = body.newObject("Sketcher::SketchObject", "Sketch014")
sketch15.AttachmentSupport = (doc.getObject("XZ_Plane"), [""])
sketch15.MapMode = "FlatFace"
sketch15.AttachmentOffset = App.Placement(V(0, 0, -16), App.Rotation())
sketch15.addGeometry([
    Part.Circle(V(-52.5, -22.5, 0), V(0, 0, 1), 3),
    Part.Circle(V(-52.5, -22.5, 0), V(0, 0, 1), 1.625),
], False)
sketch15.addConstraint([
    Sketcher.Constraint("Coincident", 1, 3, 0, 3),
    Sketcher.Constraint("Diameter", 0, Q("6 mm")),
    Sketcher.Constraint("Diameter", 1, Q("3.25 mm")),
    Sketcher.Constraint("DistanceX", 0, 3, -1, 1, Q("52.5 mm")),
    Sketcher.Constraint("DistanceY", 0, 3, -1, 1, Q("22.5 mm")),
])
pad8 = body.newObject("PartDesign::Pad", "Pad007")
pad8.Profile = sketch15
pad8.Length = 4
pad8.Reversed = True
doc.recompute()

mirrored5 = body.newObject("PartDesign::Mirrored", "Mirrored004")
mirrored5.Originals = [pad8]
mirrored5.MirrorPlane = (doc.getObject("XY_Plane"), [""])
body.Tip = mirrored5
doc.recompute()

fillet = body.newObject("PartDesign::Fillet", "Fillet")
fillet.Base = (mirrored5, edges_at(mirrored5, [
    (30, 1.5, 12.5),
    (30, 1.5, -12.5),
    (35, 1.5, -12.5),
    (35, 1.5, 12.5),
    (60, 1.5, -35),
    (60, 1.5, 35),
]))
fillet.Radius = 2

# Sketch on XZ plane
sketch16 = body.newObject("Sketcher::SketchObject", "Sketch015")
sketch16.AttachmentSupport = (doc.getObject("XZ_Plane"), [""])
sketch16.MapMode = "FlatFace"
sketch16.AttachmentOffset = App.Placement(V(0, 0, -3), App.Rotation())
sketch16.addGeometry(Part.Circle(V(55, 0, 0), V(0, 0, 1), 1.625), False)
sketch16.addConstraint([
    Sketcher.Constraint("PointOnObject", 0, 3, -1),
    Sketcher.Constraint("Diameter", 0, Q("3.25 mm")),
    Sketcher.Constraint("DistanceX", -1, 1, 0, 3, Q("55 mm")),
])
pocket8 = body.newObject("PartDesign::Pocket", "Pocket007")
pocket8.Profile = sketch16
pocket8.Type = "ThroughAll"
pocket8.Reversed = True
doc.recompute()

linearpattern = body.newObject("PartDesign::LinearPattern", "LinearPattern")
linearpattern.Originals = [pocket8]
linearpattern.Direction = (doc.getObject("Z_Axis"), [""])
linearpattern.Mode = "offset"
linearpattern.Offset = 30
linearpattern.Occurrences = 2
body.Tip = linearpattern
doc.recompute()

linearpattern2 = body.newObject("PartDesign::LinearPattern", "LinearPattern001")
linearpattern2.Originals = [pocket8]
linearpattern2.Direction = (doc.getObject("Z_Axis"), [""])
linearpattern2.Mode = "offset"
linearpattern2.Offset = 30
linearpattern2.Occurrences = 2
linearpattern2.Reversed = True
body.Tip = linearpattern2
doc.recompute()

linearpattern3 = body.newObject("PartDesign::LinearPattern", "LinearPattern002")
linearpattern3.Originals = [pocket8]
linearpattern3.Direction = (doc.getObject("X_Axis"), [""])
linearpattern3.Mode = "offset"
linearpattern3.Offset = 30
linearpattern3.Occurrences = 4
linearpattern3.Reversed = True
body.Tip = linearpattern3

# Sketch on XZ plane
sketch17 = body.newObject("Sketcher::SketchObject", "Sketch016")
sketch17.AttachmentSupport = (doc.getObject("XZ_Plane"), [""])
sketch17.MapMode = "FlatFace"
sketch17.AttachmentOffset = App.Placement(V(0, 0, -3), App.Rotation())
sketch17.addGeometry(Part.Circle(V(25, 30, 0), V(0, 0, 1), 1.625), False)
sketch17.addConstraint([
    Sketcher.Constraint("Diameter", 0, Q("3.25 mm")),
    Sketcher.Constraint("DistanceX", -1, 1, 0, 3, Q("25 mm")),
    Sketcher.Constraint("DistanceY", -1, 1, 0, 3, Q("30 mm")),
])
pocket9 = body.newObject("PartDesign::Pocket", "Pocket008")
pocket9.Profile = sketch17
pocket9.Type = "ThroughAll"
pocket9.Reversed = True

# Sketch on XZ plane
sketch18 = body.newObject("Sketcher::SketchObject", "Sketch017")
sketch18.AttachmentSupport = (doc.getObject("XZ_Plane"), [""])
sketch18.MapMode = "FlatFace"
sketch18.AttachmentOffset = App.Placement(V(0, 0, -3), App.Rotation())
sketch18.addGeometry(Part.Circle(V(-5, 30, 0), V(0, 0, 1), 1.625), False)
sketch18.addConstraint([
    Sketcher.Constraint("Diameter", 0, Q("3.25 mm")),
    Sketcher.Constraint("DistanceX", 0, 3, -1, 1, Q("5 mm")),
    Sketcher.Constraint("DistanceY", -1, 1, 0, 3, Q("30 mm")),
])
pocket10 = body.newObject("PartDesign::Pocket", "Pocket009")
pocket10.Profile = sketch18
pocket10.Type = "ThroughAll"
pocket10.Reversed = True

# Sketch on XZ plane
sketch19 = body.newObject("Sketcher::SketchObject", "Sketch018")
sketch19.AttachmentSupport = (doc.getObject("XZ_Plane"), [""])
sketch19.MapMode = "FlatFace"
sketch19.AttachmentOffset = App.Placement(V(0, 0, -3), App.Rotation())
sketch19.addGeometry(Part.Circle(V(-35, 30, 0), V(0, 0, 1), 1.625), False)
sketch19.addConstraint([
    Sketcher.Constraint("Diameter", 0, Q("3.25 mm")),
    Sketcher.Constraint("DistanceX", 0, 3, -1, 1, Q("35 mm")),
    Sketcher.Constraint("DistanceY", -1, 1, 0, 3, Q("30 mm")),
])
pocket11 = body.newObject("PartDesign::Pocket", "Pocket010")
pocket11.Profile = sketch19
pocket11.Type = "ThroughAll"
pocket11.Reversed = True

# Sketch on XZ plane
sketch20 = body.newObject("Sketcher::SketchObject", "Sketch019")
sketch20.AttachmentSupport = (doc.getObject("XZ_Plane"), [""])
sketch20.MapMode = "FlatFace"
sketch20.AttachmentOffset = App.Placement(V(0, 0, -3), App.Rotation())
sketch20.addGeometry(Part.Circle(V(25, -30, 0), V(0, 0, 1), 1.625), False)
sketch20.addConstraint([
    Sketcher.Constraint("Diameter", 0, Q("3.25 mm")),
    Sketcher.Constraint("DistanceX", -1, 1, 0, 3, Q("25 mm")),
    Sketcher.Constraint("DistanceY", 0, 3, -1, 1, Q("30 mm")),
])
pocket12 = body.newObject("PartDesign::Pocket", "Pocket011")
pocket12.Profile = sketch20
pocket12.Type = "ThroughAll"
pocket12.Reversed = True

# Sketch on XZ plane
sketch21 = body.newObject("Sketcher::SketchObject", "Sketch020")
sketch21.AttachmentSupport = (doc.getObject("XZ_Plane"), [""])
sketch21.MapMode = "FlatFace"
sketch21.AttachmentOffset = App.Placement(V(0, 0, -3), App.Rotation())
sketch21.addGeometry(Part.Circle(V(-5, -30, 0), V(0, 0, 1), 1.625), False)
sketch21.addConstraint([
    Sketcher.Constraint("Diameter", 0, Q("3.25 mm")),
    Sketcher.Constraint("DistanceX", 0, 3, -1, 1, Q("5 mm")),
    Sketcher.Constraint("DistanceY", 0, 3, -1, 1, Q("30 mm")),
])
pocket13 = body.newObject("PartDesign::Pocket", "Pocket012")
pocket13.Profile = sketch21
pocket13.Type = "ThroughAll"
pocket13.Reversed = True

# Sketch on XZ plane
sketch22 = body.newObject("Sketcher::SketchObject", "Sketch021")
sketch22.AttachmentSupport = (doc.getObject("XZ_Plane"), [""])
sketch22.MapMode = "FlatFace"
sketch22.AttachmentOffset = App.Placement(V(0, 0, -3), App.Rotation())
sketch22.addGeometry(Part.Circle(V(-35, -30, 0), V(0, 0, 1), 1.625), False)
sketch22.addConstraint([
    Sketcher.Constraint("Diameter", 0, Q("3.25 mm")),
    Sketcher.Constraint("DistanceX", 0, 3, -1, 1, Q("35 mm")),
    Sketcher.Constraint("DistanceY", 0, 3, -1, 1, Q("30 mm")),
])
pocket14 = body.newObject("PartDesign::Pocket", "Pocket013")
pocket14.Profile = sketch22
pocket14.Type = "ThroughAll"
pocket14.Reversed = True

doc.recompute()
